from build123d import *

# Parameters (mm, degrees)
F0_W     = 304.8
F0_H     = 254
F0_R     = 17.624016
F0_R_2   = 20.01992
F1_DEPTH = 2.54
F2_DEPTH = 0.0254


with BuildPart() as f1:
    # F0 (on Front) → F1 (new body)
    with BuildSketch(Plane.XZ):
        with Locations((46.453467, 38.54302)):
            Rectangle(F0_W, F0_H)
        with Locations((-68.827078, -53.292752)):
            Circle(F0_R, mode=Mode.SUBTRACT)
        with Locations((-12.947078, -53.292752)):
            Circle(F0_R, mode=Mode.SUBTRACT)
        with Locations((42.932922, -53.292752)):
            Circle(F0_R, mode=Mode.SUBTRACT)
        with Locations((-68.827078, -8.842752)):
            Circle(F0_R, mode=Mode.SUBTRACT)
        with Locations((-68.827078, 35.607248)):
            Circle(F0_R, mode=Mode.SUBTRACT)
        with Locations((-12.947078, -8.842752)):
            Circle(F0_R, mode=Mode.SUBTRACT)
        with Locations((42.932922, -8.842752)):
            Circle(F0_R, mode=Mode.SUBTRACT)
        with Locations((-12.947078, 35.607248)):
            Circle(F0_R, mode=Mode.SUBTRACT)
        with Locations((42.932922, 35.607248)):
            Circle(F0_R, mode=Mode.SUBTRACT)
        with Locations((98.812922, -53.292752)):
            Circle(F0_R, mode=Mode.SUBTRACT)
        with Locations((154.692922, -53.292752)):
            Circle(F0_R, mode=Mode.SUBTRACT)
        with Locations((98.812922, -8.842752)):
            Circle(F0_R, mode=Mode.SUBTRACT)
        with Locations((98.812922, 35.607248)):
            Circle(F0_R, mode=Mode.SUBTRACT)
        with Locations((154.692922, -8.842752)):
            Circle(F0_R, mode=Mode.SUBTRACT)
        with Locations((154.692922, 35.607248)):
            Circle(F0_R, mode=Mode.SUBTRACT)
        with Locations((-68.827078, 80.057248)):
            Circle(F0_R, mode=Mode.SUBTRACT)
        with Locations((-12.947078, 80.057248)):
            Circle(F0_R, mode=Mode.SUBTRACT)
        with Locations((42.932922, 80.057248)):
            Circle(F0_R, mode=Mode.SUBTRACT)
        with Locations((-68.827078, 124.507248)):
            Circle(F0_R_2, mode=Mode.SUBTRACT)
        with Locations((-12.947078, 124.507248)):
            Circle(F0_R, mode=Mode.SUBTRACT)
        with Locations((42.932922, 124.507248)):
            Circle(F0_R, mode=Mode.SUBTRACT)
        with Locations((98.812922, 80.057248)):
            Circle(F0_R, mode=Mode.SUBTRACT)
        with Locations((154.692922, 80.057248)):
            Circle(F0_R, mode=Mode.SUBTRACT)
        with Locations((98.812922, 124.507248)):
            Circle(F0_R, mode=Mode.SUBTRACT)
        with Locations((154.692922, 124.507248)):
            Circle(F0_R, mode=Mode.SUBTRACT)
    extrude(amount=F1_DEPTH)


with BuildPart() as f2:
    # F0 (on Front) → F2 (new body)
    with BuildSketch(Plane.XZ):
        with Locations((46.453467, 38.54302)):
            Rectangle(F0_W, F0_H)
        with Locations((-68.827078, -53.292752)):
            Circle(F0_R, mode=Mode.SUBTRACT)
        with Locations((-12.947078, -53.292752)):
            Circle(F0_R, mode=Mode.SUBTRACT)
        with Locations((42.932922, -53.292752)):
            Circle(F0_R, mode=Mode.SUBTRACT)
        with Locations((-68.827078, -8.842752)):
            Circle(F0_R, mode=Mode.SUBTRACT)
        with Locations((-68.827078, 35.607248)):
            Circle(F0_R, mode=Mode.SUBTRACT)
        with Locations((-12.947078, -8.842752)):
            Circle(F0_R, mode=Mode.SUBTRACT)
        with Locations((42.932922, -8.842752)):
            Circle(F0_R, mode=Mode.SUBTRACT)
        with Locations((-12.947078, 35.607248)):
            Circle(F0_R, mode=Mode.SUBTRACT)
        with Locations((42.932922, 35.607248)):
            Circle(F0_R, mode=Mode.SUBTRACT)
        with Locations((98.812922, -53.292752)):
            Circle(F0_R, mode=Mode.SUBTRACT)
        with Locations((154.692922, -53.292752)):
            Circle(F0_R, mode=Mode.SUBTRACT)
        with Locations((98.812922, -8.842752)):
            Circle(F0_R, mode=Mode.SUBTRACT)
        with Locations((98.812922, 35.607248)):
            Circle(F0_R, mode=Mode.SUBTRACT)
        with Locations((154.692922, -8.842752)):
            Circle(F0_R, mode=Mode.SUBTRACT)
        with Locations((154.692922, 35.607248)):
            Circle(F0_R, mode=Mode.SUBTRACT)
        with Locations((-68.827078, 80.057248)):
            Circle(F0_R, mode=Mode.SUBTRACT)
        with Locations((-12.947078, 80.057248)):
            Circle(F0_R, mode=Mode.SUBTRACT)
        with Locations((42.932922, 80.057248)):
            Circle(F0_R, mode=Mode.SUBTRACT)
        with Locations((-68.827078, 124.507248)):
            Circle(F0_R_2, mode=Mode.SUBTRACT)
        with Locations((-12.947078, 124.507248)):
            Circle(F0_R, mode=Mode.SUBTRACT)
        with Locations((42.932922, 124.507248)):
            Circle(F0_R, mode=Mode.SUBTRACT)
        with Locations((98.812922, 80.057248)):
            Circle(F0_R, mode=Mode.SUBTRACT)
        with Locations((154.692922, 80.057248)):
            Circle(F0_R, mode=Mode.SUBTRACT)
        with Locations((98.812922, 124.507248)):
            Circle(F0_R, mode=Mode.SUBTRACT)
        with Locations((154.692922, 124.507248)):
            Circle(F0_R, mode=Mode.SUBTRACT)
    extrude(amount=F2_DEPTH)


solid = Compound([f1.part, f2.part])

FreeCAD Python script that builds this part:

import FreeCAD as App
import Part
import Sketcher

V = App.Vector
Q = App.Units.Quantity

doc = App.newDocument("Part")
body = doc.addObject("PartDesign::Body", "Body")

sketch1 = body.newObject("Sketcher::SketchObject", "Sketch")
sketch1.AttachmentSupport = (doc.getObject("XZ_Plane"), [""])
sketch1.MapMode = "FlatFace"
sketch1.addGeometry(Part.LineSegment(V(-105.946533, 165.54302, 0), V(-105.946533, -88.45698, 0)), False)
sketch1.addGeometry(Part.LineSegment(V(-105.946533, -88.45698, 0), V(198.853467, -88.45698, 0)), False)
sketch1.addGeometry(Part.LineSegment(V(198.853467, -88.45698, 0), V(198.853467, 165.54302, 0)), False)
sketch1.addGeometry(Part.LineSegment(V(198.853467, 165.54302, 0), V(-105.946533, 165.54302, 0)), False)
sketch1.addGeometry(Part.Circle(V(-68.827078, -53.292752, 0), V(0, 0, 1), 17.624016), False)
sketch1.addGeometry(Part.Circle(V(-12.947078, -53.292752, 0), V(0, 0, 1), 17.624016), False)
sketch1.addGeometry(Part.Circle(V(-68.827078, -8.842752, 0), V(0, 0, 1), 17.624016), False)
sketch1.addGeometry(Part.Circle(V(-68.827078, 35.607248, 0), V(0, 0, 1), 17.624016), False)
sketch1.addGeometry(Part.Circle(V(-12.947078, -8.842752, 0), V(0, 0, 1), 17.624016), False)
sketch1.addGeometry(Part.Circle(V(-12.947078, 35.607248, 0), V(0, 0, 1), 17.624016), False)
sketch1.addGeometry(Part.Circle(V(42.932922, -53.292752, 0), V(0, 0, 1), 17.624016), False)
sketch1.addGeometry(Part.Circle(V(98.812922, -53.292752, 0), V(0, 0, 1), 17.624016), False)
sketch1.addGeometry(Part.Circle(V(154.692922, -53.292752, 0), V(0, 0, 1), 17.624016), False)
sketch1.addGeometry(Part.Circle(V(42.932922, -8.842752, 0), V(0, 0, 1), 17.624016), False)
sketch1.addGeometry(Part.Circle(V(98.812922, -8.842752, 0), V(0, 0, 1), 17.624016), False)
sketch1.addGeometry(Part.Circle(V(42.932922, 35.607248, 0), V(0, 0, 1), 17.624016), False)
sketch1.addGeometry(Part.Circle(V(98.812922, 35.607248, 0), V(0, 0, 1), 17.624016), False)
sketch1.addGeometry(Part.Circle(V(154.692922, -8.842752, 0), V(0, 0, 1), 17.624016), False)
sketch1.addGeometry(Part.Circle(V(154.692922, 35.607248, 0), V(0, 0, 1), 17.624016), False)
sketch1.addGeometry(Part.Circle(V(-68.827078, 80.057248, 0), V(0, 0, 1), 17.624016), False)
sketch1.addGeometry(Part.Circle(V(-12.947078, 80.057248, 0), V(0, 0, 1), 17.624016), False)
sketch1.addGeometry(Part.Circle(V(-68.827078, 124.507248, 0), V(0, 0, 1), 20.01992), False)
sketch1.addGeometry(Part.Circle(V(-12.947078, 124.507248, 0), V(0, 0, 1), 17.624016), False)
sketch1.addGeometry(Part.Circle(V(42.932922, 80.057248, 0), V(0, 0, 1), 17.624016), False)
sketch1.addGeometry(Part.Circle(V(98.812922, 80.057248, 0), V(0, 0, 1), 17.624016), False)
sketch1.addGeometry(Part.Circle(V(154.692922, 80.057248, 0), V(0, 0, 1), 17.624016), False)
sketch1.addGeometry(Part.Circle(V(42.932922, 124.507248, 0), V(0, 0, 1), 17.624016), False)
sketch1.addGeometry(Part.Circle(V(98.812922, 124.507248, 0), V(0, 0, 1), 17.624016), False)
sketch1.addGeometry(Part.Circle(V(154.692922, 124.507248, 0), V(0, 0, 1), 17.624016), False)
sketch1.addConstraint(Sketcher.Constraint("Coincident", 0, 2, 1, 1))
sketch1.addConstraint(Sketcher.Constraint("Coincident", 1, 2, 2, 1))
sketch1.addConstraint(Sketcher.Constraint("Coincident", 2, 2, 3, 1))
sketch1.addConstraint(Sketcher.Constraint("Coincident", 3, 2, 0, 1))
sketch1.addConstraint(Sketcher.Constraint("Vertical", 0))
sketch1.addConstraint(Sketcher.Constraint("Horizontal", 1))
sketch1.addConstraint(Sketcher.Constraint("Vertical", 2))
sketch1.addConstraint(Sketcher.Constraint("Horizontal", 3))
sketch1.addConstraint(Sketcher.Constraint("Equal", 4, 5))
sketch1.addConstraint(Sketcher.Constraint("Equal", 5, 6))
sketch1.addConstraint(Sketcher.Constraint("Equal", 6, 7))
sketch1.addConstraint(Sketcher.Constraint("Equal", 7, 8))
sketch1.addConstraint(Sketcher.Constraint("Equal", 8, 9))
sketch1.addConstraint(Sketcher.Constraint("Equal", 9, 10))
sketch1.addConstraint(Sketcher.Constraint("Equal", 10, 11))
sketch1.addConstraint(Sketcher.Constraint("Equal", 11, 12))
sketch1.addConstraint(Sketcher.Constraint("Equal", 12, 13))
sketch1.addConstraint(Sketcher.Constraint("Equal", 13, 14))
sketch1.addConstraint(Sketcher.Constraint("Equal", 14, 15))
sketch1.addConstraint(Sketcher.Constraint("Equal", 15, 16))
sketch1.addConstraint(Sketcher.Constraint("Equal", 16, 17))
sketch1.addConstraint(Sketcher.Constraint("Equal", 17, 18))
sketch1.addConstraint(Sketcher.Constraint("Equal", 18, 19))
sketch1.addConstraint(Sketcher.Constraint("Equal", 19, 20))
sketch1.addConstraint(Sketcher.Constraint("Equal", 20, 22))
sketch1.addConstraint(Sketcher.Constraint("Equal", 22, 23))
sketch1.addConstraint(Sketcher.Constraint("Equal", 23, 24))
sketch1.addConstraint(Sketcher.Constraint("Equal", 24, 25))
sketch1.addConstraint(Sketcher.Constraint("Equal", 25, 26))
sketch1.addConstraint(Sketcher.Constraint("Equal", 26, 27))
sketch1.addConstraint(Sketcher.Constraint("Equal", 27, 28))
sketch1.addConstraint(Sketcher.Constraint("Horizontal", 4, 3, 5, 3))
sketch1.addConstraint(Sketcher.Constraint("Horizontal", 6, 3, 8, 3))
sketch1.addConstraint(Sketcher.Constraint("Horizontal", 7, 3, 9, 3))
sketch1.addConstraint(Sketcher.Constraint("Horizontal", 5, 3, 10, 3))
sketch1.addConstraint(Sketcher.Constraint("Horizontal", 10, 3, 11, 3))
sketch1.addConstraint(Sketcher.Constraint("Horizontal", 11, 3, 12, 3))
sketch1.addConstraint(Sketcher.Constraint("Horizontal", 8, 3, 13, 3))
sketch1.addConstraint(Sketcher.Constraint("Horizontal", 13, 3, 14, 3))
sketch1.addConstraint(Sketcher.Constraint("Horizontal", 9, 3, 15, 3))
sketch1.addConstraint(Sketcher.Constraint("Horizontal", 15, 3, 16, 3))
sketch1.addConstraint(Sketcher.Constraint("Horizontal", 14, 3, 17, 3))
sketch1.addConstraint(Sketcher.Constraint("Horizontal", 16, 3, 18, 3))
sketch1.addConstraint(Sketcher.Constraint("Horizontal", 19, 3, 20, 3))
sketch1.addConstraint(Sketcher.Constraint("Horizontal", 21, 3, 22, 3))
sketch1.addConstraint(Sketcher.Constraint("Horizontal", 20, 3, 23, 3))
sketch1.addConstraint(Sketcher.Constraint("Horizontal", 23, 3, 24, 3))
sketch1.addConstraint(Sketcher.Constraint("Horizontal", 24, 3, 25, 3))
sketch1.addConstraint(Sketcher.Constraint("Horizontal", 22, 3, 26, 3))
sketch1.addConstraint(Sketcher.Constraint("Horizontal", 26, 3, 27, 3))
sketch1.addConstraint(Sketcher.Constraint("Horizontal", 27, 3, 28, 3))
sketch1.addConstraint(Sketcher.Constraint("Vertical", 4, 3, 6, 3))
sketch1.addConstraint(Sketcher.Constraint("Vertical", 6, 3, 7, 3))
sketch1.addConstraint(Sketcher.Constraint("Vertical", 5, 3, 8, 3))
sketch1.addConstraint(Sketcher.Constraint("Vertical", 8, 3, 9, 3))
sketch1.addConstraint(Sketcher.Constraint("Vertical", 10, 3, 13, 3))
sketch1.addConstraint(Sketcher.Constraint("Vertical", 11, 3, 14, 3))
sketch1.addConstraint(Sketcher.Constraint("Vertical", 13, 3, 15, 3))
sketch1.addConstraint(Sketcher.Constraint("Vertical", 14, 3, 16, 3))
sketch1.addConstraint(Sketcher.Constraint("Vertical", 12, 3, 17, 3))
sketch1.addConstraint(Sketcher.Constraint("Vertical", 17, 3, 18, 3))
sketch1.addConstraint(Sketcher.Constraint("Vertical", 7, 3, 19, 3))
sketch1.addConstraint(Sketcher.Constraint("Vertical", 9, 3, 20, 3))
sketch1.addConstraint(Sketcher.Constraint("Vertical", 19, 3, 21, 3))
sketch1.addConstraint(Sketcher.Constraint("Vertical", 20, 3, 22, 3))
sketch1.addConstraint(Sketcher.Constraint("Vertical", 15, 3, 23, 3))
sketch1.addConstraint(Sketcher.Constraint("Vertical", 16, 3, 24, 3))
sketch1.addConstraint(Sketcher.Constraint("Vertical", 18, 3, 25, 3))
sketch1.addConstraint(Sketcher.Constraint("Vertical", 23, 3, 26, 3))
sketch1.addConstraint(Sketcher.Constraint("Vertical", 24, 3, 27, 3))
sketch1.addConstraint(Sketcher.Constraint("Vertical", 25, 3, 28, 3))
sketch1.addConstraint(Sketcher.Constraint("DistanceX", 1, 1, 1, 2, Q("12 in")))
sketch1.addConstraint(Sketcher.Constraint("DistanceY", 0, 2, 0, 1, Q("10 in")))
sketch1.addConstraint(Sketcher.Constraint("DistanceX", 4, 3, 5, 3, Q("2.2 in")))
sketch1.addConstraint(Sketcher.Constraint("DistanceY", 4, 3, 7, 3, Q("3.5 in")))
sketch1.addConstraint(Sketcher.Constraint("DistanceX", 5, 3, 10, 3, Q("2.2 in")))
sketch1.addConstraint(Sketcher.Constraint("DistanceX", 10, 3, 11, 3, Q("2.2 in")))
sketch1.addConstraint(Sketcher.Constraint("DistanceX", 11, 3, 12, 3, Q("2.2 in")))
sketch1.addConstraint(Sketcher.Constraint("DistanceY", 6, 3, 19, 3, Q("3.5 in")))
sketch1.addConstraint(Sketcher.Constraint("DistanceY", 7, 3, 21, 3, Q("3.5 in")))
sketch1.addConstraint(Sketcher.Constraint("DistanceY", 4, 3, 6, 3, Q("1.75 in")))
sketch1.addConstraint(Sketcher.Constraint("Diameter", 21, Q("40.03984 mm")))
sketch1.addConstraint(Sketcher.Constraint("Diameter", 4, Q("35.248032 mm")))
sketch1.addConstraint(Sketcher.Constraint("DistanceX", 4, 3, -1, 1, Q("68.827078 mm")))
sketch1.addConstraint(Sketcher.Constraint("DistanceY", -1, 1, 19, 3, Q("80.057248 mm")))
sketch1.addConstraint(Sketcher.Constraint("DistanceY", 0, 2, -1, 1, Q("88.45698 mm")))
sketch1.addConstraint(Sketcher.Constraint("DistanceX", 0, 2, -1, 1, Q("105.946533 mm")))
pad1 = body.newObject("PartDesign::Pad", "Pad")
pad1.Profile = sketch1
pad1.Length = Q("0.1 in")
body2 = doc.addObject("PartDesign::Body", "Body001")

sketch2 = body2.newObject("Sketcher::SketchObject", "Sketch001")
sketch2.AttachmentSupport = (doc.getObject("XZ_Plane001"), [""])
sketch2.MapMode = "FlatFace"
sketch2.addGeometry(Part.LineSegment(V(-105.946533, 165.54302, 0), V(-105.946533, -88.45698, 0)), False)
sketch2.addGeometry(Part.LineSegment(V(-105.946533, -88.45698, 0), V(198.853467, -88.45698, 0)), False)
sketch2.addGeometry(Part.LineSegment(V(198.853467, -88.45698, 0), V(198.853467, 165.54302, 0)), False)
sketch2.addGeometry(Part.LineSegment(V(198.853467, 165.54302, 0), V(-105.946533, 165.54302, 0)), False)
sketch2.addGeometry(Part.Circle(V(-68.827078, -53.292752, 0), V(0, 0, 1), 17.624016), False)
sketch2.addGeometry(Part.Circle(V(-12.947078, -53.292752, 0), V(0, 0, 1), 17.624016), False)
sketch2.addGeometry(Part.Circle(V(-68.827078, -8.842752, 0), V(0, 0, 1), 17.624016), False)
sketch2.addGeometry(Part.Circle(V(-68.827078, 35.607248, 0), V(0, 0, 1), 17.624016), False)
sketch2.addGeometry(Part.Circle(V(-12.947078, -8.842752, 0), V(0, 0, 1), 17.624016), False)
sketch2.addGeometry(Part.Circle(V(-12.947078, 35.607248, 0), V(0, 0, 1), 17.624016), False)
sketch2.addGeometry(Part.Circle(V(42.932922, -53.292752, 0), V(0, 0, 1), 17.624016), False)
sketch2.addGeometry(Part.Circle(V(98.812922, -53.292752, 0), V(0, 0, 1), 17.624016), False)
sketch2.addGeometry(Part.Circle(V(154.692922, -53.292752, 0), V(0, 0, 1), 17.624016), False)
sketch2.addGeometry(Part.Circle(V(42.932922, -8.842752, 0), V(0, 0, 1), 17.624016), False)
sketch2.addGeometry(Part.Circle(V(98.812922, -8.842752, 0), V(0, 0, 1), 17.624016), False)
sketch2.addGeometry(Part.Circle(V(42.932922, 35.607248, 0), V(0, 0, 1), 17.624016), False)
sketch2.addGeometry(Part.Circle(V(98.812922, 35.607248, 0), V(0, 0, 1), 17.624016), False)
sketch2.addGeometry(Part.Circle(V(154.692922, -8.842752, 0), V(0, 0, 1), 17.624016), False)
sketch2.addGeometry(Part.Circle(V(154.692922, 35.607248, 0), V(0, 0, 1), 17.624016), False)
sketch2.addGeometry(Part.Circle(V(-68.827078, 80.057248, 0), V(0, 0, 1), 17.624016), False)
sketch2.addGeometry(Part.Circle(V(-12.947078, 80.057248, 0), V(0, 0, 1), 17.624016), False)
sketch2.addGeometry(Part.Circle(V(-68.827078, 124.507248, 0), V(0, 0, 1), 20.01992), False)
sketch2.addGeometry(Part.Circle(V(-12.947078, 124.507248, 0), V(0, 0, 1), 17.624016), False)
sketch2.addGeometry(Part.Circle(V(42.932922, 80.057248, 0), V(0, 0, 1), 17.624016), False)
sketch2.addGeometry(Part.Circle(V(98.812922, 80.057248, 0), V(0, 0, 1), 17.624016), False)
sketch2.addGeometry(Part.Circle(V(154.692922, 80.057248, 0), V(0, 0, 1), 17.624016), False)
sketch2.addGeometry(Part.Circle(V(42.932922, 124.507248, 0), V(0, 0, 1), 17.624016), False)
sketch2.addGeometry(Part.Circle(V(98.812922, 124.507248, 0), V(0, 0, 1), 17.624016), False)
sketch2.addGeometry(Part.Circle(V(154.692922, 124.507248, 0), V(0, 0, 1), 17.624016), False)
sketch2.addConstraint(Sketcher.Constraint("Coincident", 0, 2, 1, 1))
sketch2.addConstraint(Sketcher.Constraint("Coincident", 1, 2, 2, 1))
sketch2.addConstraint(Sketcher.Constraint("Coincident", 2, 2, 3, 1))
sketch2.addConstraint(Sketcher.Constraint("Coincident", 3, 2, 0, 1))
sketch2.addConstraint(Sketcher.Constraint("Vertical", 0))
sketch2.addConstraint(Sketcher.Constraint("Horizontal", 1))
sketch2.addConstraint(Sketcher.Constraint("Vertical", 2))
sketch2.addConstraint(Sketcher.Constraint("Horizontal", 3))
sketch2.addConstraint(Sketcher.Constraint("Equal", 4, 5))
sketch2.addConstraint(Sketcher.Constraint("Equal", 5, 6))
sketch2.addConstraint(Sketcher.Constraint("Equal", 6, 7))
sketch2.addConstraint(Sketcher.Constraint("Equal", 7, 8))
sketch2.addConstraint(Sketcher.Constraint("Equal", 8, 9))
sketch2.addConstraint(Sketcher.Constraint("Equal", 9, 10))
sketch2.addConstraint(Sketcher.Constraint("Equal", 10, 11))
sketch2.addConstraint(Sketcher.Constraint("Equal", 11, 12))
sketch2.addConstraint(Sketcher.Constraint("Equal", 12, 13))
sketch2.addConstraint(Sketcher.Constraint("Equal", 13, 14))
sketch2.addConstraint(Sketcher.Constraint("Equal", 14, 15))
sketch2.addConstraint(Sketcher.Constraint("Equal", 15, 16))
sketch2.addConstraint(Sketcher.Constraint("Equal", 16, 17))
sketch2.addConstraint(Sketcher.Constraint("Equal", 17, 18))
sketch2.addConstraint(Sketcher.Constraint("Equal", 18, 19))
sketch2.addConstraint(Sketcher.Constraint("Equal", 19, 20))
sketch2.addConstraint(Sketcher.Constraint("Equal", 20, 22))
sketch2.addConstraint(Sketcher.Constraint("Equal", 22, 23))
sketch2.addConstraint(Sketcher.Constraint("Equal", 23, 24))
sketch2.addConstraint(Sketcher.Constraint("Equal", 24, 25))
sketch2.addConstraint(Sketcher.Constraint("Equal", 25, 26))
sketch2.addConstraint(Sketcher.Constraint("Equal", 26, 27))
sketch2.addConstraint(Sketcher.Constraint("Equal", 27, 28))
sketch2.addConstraint(Sketcher.Constraint("Horizontal", 4, 3, 5, 3))
sketch2.addConstraint(Sketcher.Constraint("Horizontal", 6, 3, 8, 3))
sketch2.addConstraint(Sketcher.Constraint("Horizontal", 7, 3, 9, 3))
sketch2.addConstraint(Sketcher.Constraint("Horizontal", 5, 3, 10, 3))
sketch2.addConstraint(Sketcher.Constraint("Horizontal", 10, 3, 11, 3))
sketch2.addConstraint(Sketcher.Constraint("Horizontal", 11, 3, 12, 3))
sketch2.addConstraint(Sketcher.Constraint("Horizontal", 8, 3, 13, 3))
sketch2.addConstraint(Sketcher.Constraint("Horizontal", 13, 3, 14, 3))
sketch2.addConstraint(Sketcher.Constraint("Horizontal", 9, 3, 15, 3))
sketch2.addConstraint(Sketcher.Constraint("Horizontal", 15, 3, 16, 3))
sketch2.addConstraint(Sketcher.Constraint("Horizontal", 14, 3, 17, 3))
sketch2.addConstraint(Sketcher.Constraint("Horizontal", 16, 3, 18, 3))
sketch2.addConstraint(Sketcher.Constraint("Horizontal", 19, 3, 20, 3))
sketch2.addConstraint(Sketcher.Constraint("Horizontal", 21, 3, 22, 3))
sketch2.addConstraint(Sketcher.Constraint("Horizontal", 20, 3, 23, 3))
sketch2.addConstraint(Sketcher.Constraint("Horizontal", 23, 3, 24, 3))
sketch2.addConstraint(Sketcher.Constraint("Horizontal", 24, 3, 25, 3))
sketch2.addConstraint(Sketcher.Constraint("Horizontal", 22, 3, 26, 3))
sketch2.addConstraint(Sketcher.Constraint("Horizontal", 26, 3, 27, 3))
sketch2.addConstraint(Sketcher.Constraint("Horizontal", 27, 3, 28, 3))
sketch2.addConstraint(Sketcher.Constraint("Vertical", 4, 3, 6, 3))
sketch2.addConstraint(Sketcher.Constraint("Vertical", 6, 3, 7, 3))
sketch2.addConstraint(Sketcher.Constraint("Vertical", 5, 3, 8, 3))
sketch2.addConstraint(Sketcher.Constraint("Vertical", 8, 3, 9, 3))
sketch2.addConstraint(Sketcher.Constraint("Vertical", 10, 3, 13, 3))
sketch2.addConstraint(Sketcher.Constraint("Vertical", 11, 3, 14, 3))
sketch2.addConstraint(Sketcher.Constraint("Vertical", 13, 3, 15, 3))
sketch2.addConstraint(Sketcher.Constraint("Vertical", 14, 3, 16, 3))
sketch2.addConstraint(Sketcher.Constraint("Vertical", 12, 3, 17, 3))
sketch2.addConstraint(Sketcher.Constraint("Vertical", 17, 3, 18, 3))
sketch2.addConstraint(Sketcher.Constraint("Vertical", 7, 3, 19, 3))
sketch2.addConstraint(Sketcher.Constraint("Vertical", 9, 3, 20, 3))
sketch2.addConstraint(Sketcher.Constraint("Vertical", 19, 3, 21, 3))
sketch2.addConstraint(Sketcher.Constraint("Vertical", 20, 3, 22, 3))
sketch2.addConstraint(Sketcher.Constraint("Vertical", 15, 3, 23, 3))
sketch2.addConstraint(Sketcher.Constraint("Vertical", 16, 3, 24, 3))
sketch2.addConstraint(Sketcher.Constraint("Vertical", 18, 3, 25, 3))
sketch2.addConstraint(Sketcher.Constraint("Vertical", 23, 3, 26, 3))
sketch2.addConstraint(Sketcher.Constraint("Vertical", 24, 3, 27, 3))
sketch2.addConstraint(Sketcher.Constraint("Vertical", 25, 3, 28, 3))
sketch2.addConstraint(Sketcher.Constraint("DistanceX", 1, 1, 1, 2, Q("12 in")))
sketch2.addConstraint(Sketcher.Constraint("DistanceY", 0, 2, 0, 1, Q("10 in")))
sketch2.addConstraint(Sketcher.Constraint("DistanceX", 4, 3, 5, 3, Q("2.2 in")))
sketch2.addConstraint(Sketcher.Constraint("DistanceY", 4, 3, 7, 3, Q("3.5 in")))
sketch2.addConstraint(Sketcher.Constraint("DistanceX", 5, 3, 10, 3, Q("2.2 in")))
sketch2.addConstraint(Sketcher.Constraint("DistanceX", 10, 3, 11, 3, Q("2.2 in")))
sketch2.addConstraint(Sketcher.Constraint("DistanceX", 11, 3, 12, 3, Q("2.2 in")))
sketch2.addConstraint(Sketcher.Constraint("DistanceY", 6, 3, 19, 3, Q("3.5 in")))
sketch2.addConstraint(Sketcher.Constraint("DistanceY", 7, 3, 21, 3, Q("3.5 in")))
sketch2.addConstraint(Sketcher.Constraint("DistanceY", 4, 3, 6, 3, Q("1.75 in")))
sketch2.addConstraint(Sketcher.Constraint("Diameter", 21, Q("40.03984 mm")))
sketch2.addConstraint(Sketcher.Constraint("Diameter", 4, Q("35.248032 mm")))
sketch2.addConstraint(Sketcher.Constraint("DistanceX", 4, 3, -1, 1, Q("68.827078 mm")))
sketch2.addConstraint(Sketcher.Constraint("DistanceY", -1, 1, 19, 3, Q("80.057248 mm")))
sketch2.addConstraint(Sketcher.Constraint("DistanceY", 0, 2, -1, 1, Q("88.45698 mm")))
sketch2.addConstraint(Sketcher.Constraint("DistanceX", 0, 2, -1, 1, Q("105.946533 mm")))
pad2 = body2.newObject("PartDesign::Pad", "Pad001")
pad2.Profile = sketch2
pad2.Length = Q("0.001 in")

doc.recompute()
